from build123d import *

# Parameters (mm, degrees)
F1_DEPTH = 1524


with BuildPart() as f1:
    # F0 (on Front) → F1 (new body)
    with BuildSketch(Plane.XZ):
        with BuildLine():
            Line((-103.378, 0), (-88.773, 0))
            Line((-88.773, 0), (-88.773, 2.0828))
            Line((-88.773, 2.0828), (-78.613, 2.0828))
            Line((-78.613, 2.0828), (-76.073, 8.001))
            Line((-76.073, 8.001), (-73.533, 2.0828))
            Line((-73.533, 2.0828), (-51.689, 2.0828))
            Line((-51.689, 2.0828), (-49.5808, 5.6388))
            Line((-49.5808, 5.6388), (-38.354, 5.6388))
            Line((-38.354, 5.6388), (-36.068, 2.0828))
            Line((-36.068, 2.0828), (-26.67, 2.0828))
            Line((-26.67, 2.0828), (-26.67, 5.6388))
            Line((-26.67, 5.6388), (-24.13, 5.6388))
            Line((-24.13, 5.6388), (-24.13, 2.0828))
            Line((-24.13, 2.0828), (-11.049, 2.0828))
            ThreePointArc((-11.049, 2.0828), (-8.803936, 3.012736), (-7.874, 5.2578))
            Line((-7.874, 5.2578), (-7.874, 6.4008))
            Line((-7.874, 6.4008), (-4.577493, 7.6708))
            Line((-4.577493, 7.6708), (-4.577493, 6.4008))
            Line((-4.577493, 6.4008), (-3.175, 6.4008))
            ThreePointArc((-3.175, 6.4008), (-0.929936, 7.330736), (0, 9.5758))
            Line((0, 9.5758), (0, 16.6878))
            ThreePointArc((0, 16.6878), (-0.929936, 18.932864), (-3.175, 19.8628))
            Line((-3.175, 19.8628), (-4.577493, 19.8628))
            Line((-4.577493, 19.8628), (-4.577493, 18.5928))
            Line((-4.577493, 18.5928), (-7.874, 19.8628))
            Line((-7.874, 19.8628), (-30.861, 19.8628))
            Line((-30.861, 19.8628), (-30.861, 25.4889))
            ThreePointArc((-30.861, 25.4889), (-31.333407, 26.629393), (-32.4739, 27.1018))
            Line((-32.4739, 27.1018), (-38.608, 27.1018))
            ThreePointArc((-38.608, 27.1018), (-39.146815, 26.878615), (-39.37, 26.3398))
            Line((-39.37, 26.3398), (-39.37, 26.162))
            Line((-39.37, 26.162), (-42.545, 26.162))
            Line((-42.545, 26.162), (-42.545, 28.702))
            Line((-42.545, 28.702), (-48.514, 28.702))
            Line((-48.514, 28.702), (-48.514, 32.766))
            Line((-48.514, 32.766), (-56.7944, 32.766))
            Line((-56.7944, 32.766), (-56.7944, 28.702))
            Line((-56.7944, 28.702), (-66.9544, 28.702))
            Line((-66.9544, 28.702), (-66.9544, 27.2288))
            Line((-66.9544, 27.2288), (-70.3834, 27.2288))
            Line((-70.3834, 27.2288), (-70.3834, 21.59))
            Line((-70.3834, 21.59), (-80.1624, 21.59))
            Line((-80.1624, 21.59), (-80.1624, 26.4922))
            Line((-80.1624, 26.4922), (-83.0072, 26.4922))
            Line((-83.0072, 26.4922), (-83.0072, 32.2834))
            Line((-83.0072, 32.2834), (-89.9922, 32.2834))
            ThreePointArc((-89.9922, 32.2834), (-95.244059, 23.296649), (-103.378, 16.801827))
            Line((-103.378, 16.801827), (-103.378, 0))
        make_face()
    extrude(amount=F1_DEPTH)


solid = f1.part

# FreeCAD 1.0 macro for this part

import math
import FreeCAD as App
import Part
import Sketcher
Q = App.Units.Quantity

doc = App.newDocument("Part")
params = doc.addObject("Spreadsheet::Sheet", "Params")
for row, (alias, value) in enumerate([
    ("sketch1_radius", "0.03 in"),
    ("sketch1_width", "0.4 in"),
    ("sketch1_width2", "0.1 in"),
    ("sketch1_radius2", "0.125 in"),
    ("sketch1_width3", "0.86 in"),
    ("pad1_length", "60 in"),
], start=1):
    params.set(f"A{row}", alias)
    params.set(f"B{row}", "=" + value)
    params.setAlias(f"B{row}", alias)

body = doc.addObject("PartDesign::Body", "Body")

# Sketch on XZ plane
sketch1 = body.newObject("Sketcher::SketchObject", "Sketch")
sketch1.AttachmentSupport = (doc.getObject("XZ_Plane"), [""])
sketch1.MapMode = "FlatFace"
sketch1.addGeometry([
    Part.LineSegment(App.Vector(-103.38, 0, 0), App.Vector(-88.77, 0, 0)),  # 0
    Part.LineSegment(App.Vector(-88.77, 0, 0), App.Vector(-88.77, 2.08, 0)),  # 1
    Part.LineSegment(App.Vector(-88.77, 2.08, 0), App.Vector(-78.61, 2.08, 0)),  # 2
    Part.LineSegment(App.Vector(-78.61, 2.08, 0), App.Vector(-76.07, 8, 0)),  # 3
    Part.LineSegment(App.Vector(-76.07, 8, 0), App.Vector(-73.53, 2.08, 0)),  # 4
    Part.LineSegment(App.Vector(-73.53, 2.08, 0), App.Vector(-51.69, 2.08, 0)),  # 5
    Part.LineSegment(App.Vector(-51.69, 2.08, 0), App.Vector(-49.58, 5.64, 0)),  # 6
    Part.LineSegment(App.Vector(-49.58, 5.64, 0), App.Vector(-38.35, 5.64, 0)),  # 7
    Part.LineSegment(App.Vector(-38.35, 5.64, 0), App.Vector(-36.07, 2.08, 0)),  # 8
    Part.LineSegment(App.Vector(-36.07, 2.08, 0), App.Vector(-26.67, 2.08, 0)),  # 9
    Part.LineSegment(App.Vector(-26.67, 2.08, 0), App.Vector(-26.67, 5.64, 0)),  # 10
    Part.LineSegment(App.Vector(-26.67, 5.64, 0), App.Vector(-24.13, 5.64, 0)),  # 11
    Part.LineSegment(App.Vector(-24.13, 5.64, 0), App.Vector(-24.13, 2.08, 0)),  # 12
    Part.LineSegment(App.Vector(-24.13, 2.08, 0), App.Vector(-11.05, 2.08, 0)),  # 13
    Part.ArcOfCircle(Part.Circle(App.Vector(-11.05, 5.26, 0), App.Vector(0, 0, 1), 3.18), math.radians(-90), math.radians(0)),  # 14
    Part.LineSegment(App.Vector(-7.87, 5.26, 0), App.Vector(-7.87, 6.4, 0)),  # 15
    Part.LineSegment(App.Vector(-7.87, 6.4, 0), App.Vector(-4.58, 7.67, 0)),  # 16
    Part.LineSegment(App.Vector(-4.58, 7.67, 0), App.Vector(-4.58, 6.4, 0)),  # 17
    Part.LineSegment(App.Vector(-4.58, 6.4, 0), App.Vector(-3.17, 6.4, 0)),  # 18
    Part.ArcOfCircle(Part.Circle(App.Vector(-3.18, 9.58, 0), App.Vector(0, 0, 1), 3.18), math.radians(-90), math.radians(0)),  # 19
    Part.LineSegment(App.Vector(0, 9.58, 0), App.Vector(0, 16.69, 0)),  # 20
    Part.ArcOfCircle(Part.Circle(App.Vector(-3.18, 16.69, 0), App.Vector(0, 0, 1), 3.18), math.radians(0), math.radians(90)),  # 21
    Part.LineSegment(App.Vector(-3.17, 19.86, 0), App.Vector(-4.58, 19.86, 0)),  # 22
    Part.LineSegment(App.Vector(-4.58, 19.86, 0), App.Vector(-4.58, 18.59, 0)),  # 23
    Part.LineSegment(App.Vector(-4.58, 18.59, 0), App.Vector(-7.87, 19.86, 0)),  # 24
    Part.LineSegment(App.Vector(-7.87, 19.86, 0), App.Vector(-30.86, 19.86, 0)),  # 25
    Part.LineSegment(App.Vector(-30.86, 19.86, 0), App.Vector(-30.86, 25.49, 0)),  # 26
    Part.ArcOfCircle(Part.Circle(App.Vector(-32.47, 25.49, 0), App.Vector(0, 0, 1), 1.61), math.radians(0), math.radians(90)),  # 27
    Part.LineSegment(App.Vector(-32.47, 27.1, 0), App.Vector(-38.61, 27.1, 0)),  # 28
    Part.ArcOfCircle(Part.Circle(App.Vector(-38.61, 26.34, 0), App.Vector(0, 0, 1), 0.76), math.radians(90), math.radians(180)),  # 29
    Part.LineSegment(App.Vector(-39.37, 26.34, 0), App.Vector(-39.37, 26.16, 0)),  # 30
    Part.LineSegment(App.Vector(-39.37, 26.16, 0), App.Vector(-42.55, 26.16, 0)),  # 31
    Part.LineSegment(App.Vector(-42.55, 26.16, 0), App.Vector(-42.55, 28.7, 0)),  # 32
    Part.LineSegment(App.Vector(-42.55, 28.7, 0), App.Vector(-48.51, 28.7, 0)),  # 33
    Part.LineSegment(App.Vector(-48.51, 28.7, 0), App.Vector(-48.51, 32.77, 0)),  # 34
    Part.LineSegment(App.Vector(-48.51, 32.77, 0), App.Vector(-56.79, 32.77, 0)),  # 35
    Part.LineSegment(App.Vector(-56.79, 32.77, 0), App.Vector(-56.79, 28.7, 0)),  # 36
    Part.LineSegment(App.Vector(-56.79, 28.7, 0), App.Vector(-66.95, 28.7, 0)),  # 37
    Part.LineSegment(App.Vector(-66.95, 28.7, 0), App.Vector(-66.95, 27.23, 0)),  # 38
    Part.LineSegment(App.Vector(-66.95, 27.23, 0), App.Vector(-70.38, 27.23, 0)),  # 39
    Part.LineSegment(App.Vector(-70.38, 27.23, 0), App.Vector(-70.38, 21.59, 0)),  # 40
    Part.LineSegment(App.Vector(-70.38, 21.59, 0), App.Vector(-80.16, 21.59, 0)),  # 41
    Part.LineSegment(App.Vector(-80.16, 21.59, 0), App.Vector(-80.16, 26.49, 0)),  # 42
    Part.LineSegment(App.Vector(-80.16, 26.49, 0), App.Vector(-83.01, 26.49, 0)),  # 43
    Part.LineSegment(App.Vector(-83.01, 26.49, 0), App.Vector(-83.01, 32.28, 0)),  # 44
    Part.LineSegment(App.Vector(-83.01, 32.28, 0), App.Vector(-89.99, 32.28, 0)),  # 45
    Part.ArcOfCircle(Part.Circle(App.Vector(-116.76, 41.9, 0), App.Vector(0, 0, 1), 28.44), math.radians(-62), math.radians(-20)),  # 46
    Part.LineSegment(App.Vector(-103.38, 16.8, 0), App.Vector(-103.38, 0, 0)),  # 47
], False)
sketch1.addConstraint([
    Sketcher.Constraint("Coincident", 0, 2, 1, 1),
    Sketcher.Constraint("Coincident", 1, 2, 2, 1),
    Sketcher.Constraint("Coincident", 2, 2, 3, 1),
    Sketcher.Constraint("Coincident", 3, 2, 4, 1),
    Sketcher.Constraint("Coincident", 4, 2, 5, 1),
    Sketcher.Constraint("Coincident", 5, 2, 6, 1),
    Sketcher.Constraint("Coincident", 6, 2, 7, 1),
    Sketcher.Constraint("Coincident", 7, 2, 8, 1),
    Sketcher.Constraint("Coincident", 8, 2, 9, 1),
    Sketcher.Constraint("Coincident", 9, 2, 10, 1),
    Sketcher.Constraint("Coincident", 10, 2, 11, 1),
    Sketcher.Constraint("Coincident", 11, 2, 12, 1),
    Sketcher.Constraint("Coincident", 12, 2, 13, 1),
    Sketcher.Constraint("Tangent", 13, 2, 14, 1),
    Sketcher.Constraint("Tangent", 14, 2, 15, 1),
    Sketcher.Constraint("Coincident", 15, 2, 16, 1),
    Sketcher.Constraint("Coincident", 16, 2, 17, 1),
    Sketcher.Constraint("Coincident", 17, 2, 18, 1),
    Sketcher.Constraint("Tangent", 18, 2, 19, 1),
    Sketcher.Constraint("Tangent", 19, 2, 20, 1),
    Sketcher.Constraint("Tangent", 20, 2, 21, 1),
    Sketcher.Constraint("Tangent", 21, 2, 22, 1),
    Sketcher.Constraint("Coincident", 22, 2, 23, 1),
    Sketcher.Constraint("Coincident", 23, 2, 24, 1),
    Sketcher.Constraint("Coincident", 24, 2, 25, 1),
    Sketcher.Constraint("Coincident", 25, 2, 26, 1),
    Sketcher.Constraint("Tangent", 26, 2, 27, 1),
    Sketcher.Constraint("Tangent", 27, 2, 28, 1),
    Sketcher.Constraint("Tangent", 28, 2, 29, 1),
    Sketcher.Constraint("Tangent", 29, 2, 30, 1),
    Sketcher.Constraint("Coincident", 30, 2, 31, 1),
    Sketcher.Constraint("Coincident", 31, 2, 32, 1),
    Sketcher.Constraint("Coincident", 32, 2, 33, 1),
    Sketcher.Constraint("Coincident", 33, 2, 34, 1),
    Sketcher.Constraint("Coincident", 34, 2, 35, 1),
    Sketcher.Constraint("Coincident", 35, 2, 36, 1),
    Sketcher.Constraint("Coincident", 36, 2, 37, 1),
    Sketcher.Constraint("Coincident", 37, 2, 38, 1),
    Sketcher.Constraint("Coincident", 38, 2, 39, 1),
    Sketcher.Constraint("Coincident", 39, 2, 40, 1),
    Sketcher.Constraint("Coincident", 40, 2, 41, 1),
    Sketcher.Constraint("Coincident", 41, 2, 42, 1),
    Sketcher.Constraint("Coincident", 42, 2, 43, 1),
    Sketcher.Constraint("Coincident", 43, 2, 44, 1),
    Sketcher.Constraint("Coincident", 44, 2, 45, 1),
    Sketcher.Constraint("Coincident", 45, 2, 46, 2),
    Sketcher.Constraint("Coincident", 46, 1, 47, 1),
    Sketcher.Constraint("Coincident", 47, 2, 0, 1),
    Sketcher.Constraint("Horizontal", 0),
    Sketcher.Constraint("Vertical", 1),
    Sketcher.Constraint("Horizontal", 2),
    Sketcher.Constraint("Horizontal", 5),
    Sketcher.Constraint("Horizontal", 7),
    Sketcher.Constraint("Horizontal", 9),
    Sketcher.Constraint("Vertical", 10),
    Sketcher.Constraint("Horizontal", 11),
    Sketcher.Constraint("Vertical", 12),
    Sketcher.Constraint("Horizontal", 13),
    Sketcher.Constraint("Vertical", 15),
    Sketcher.Constraint("Vertical", 17),
    Sketcher.Constraint("Horizontal", 18),
    Sketcher.Constraint("Vertical", 20),
    Sketcher.Constraint("Horizontal", 22),
    Sketcher.Constraint("Vertical", 23),
    Sketcher.Constraint("Horizontal", 25),
    Sketcher.Constraint("Vertical", 26),
    Sketcher.Constraint("Horizontal", 28),
    Sketcher.Constraint("Vertical", 30),
    Sketcher.Constraint("Horizontal", 31),
    Sketcher.Constraint("Vertical", 32),
    Sketcher.Constraint("Horizontal", 33),
    Sketcher.Constraint("Vertical", 34),
    Sketcher.Constraint("Horizontal", 35),
    Sketcher.Constraint("Vertical", 36),
    Sketcher.Constraint("Horizontal", 37),
    Sketcher.Constraint("Vertical", 38),
    Sketcher.Constraint("Horizontal", 39),
    Sketcher.Constraint("Vertical", 40),
    Sketcher.Constraint("Horizontal", 41),
    Sketcher.Constraint("Vertical", 42),
    Sketcher.Constraint("Horizontal", 43),
    Sketcher.Constraint("Vertical", 44),
    Sketcher.Constraint("Horizontal", 45),
    Sketcher.Constraint("Vertical", 47),
    Sketcher.Constraint("Equal", 14, 19),
    Sketcher.Constraint("Equal", 19, 21),
    Sketcher.Constraint("PointOnObject", 0, 2, -1),
    Sketcher.Constraint("PointOnObject", 19, 2, -2),
    Sketcher.Constraint("Horizontal", 2, 2, 4, 2),
    Sketcher.Constraint("Horizontal", 5, 2, 8, 2),
    Sketcher.Constraint("Horizontal", 7, 2, 10, 2),
    Sketcher.Constraint("Horizontal", 9, 2, 12, 2),
    Sketcher.Constraint("Horizontal", 15, 2, 17, 2),
    Sketcher.Constraint("Horizontal", 22, 2, 24, 2),
    Sketcher.Constraint("Horizontal", 33, 2, 36, 2),
    Sketcher.Constraint("Vertical", 17, 2, 22, 2),
    Sketcher.Constraint("Vertical", 15, 2, 24, 2),
    Sketcher.Constraint("Equal", 2, 37),
    Sketcher.Constraint("Equal", 17, 23),
    Sketcher.Constraint("Equal", 11, 32),
    Sketcher.Constraint("Equal", 3, 4),
    Sketcher.Constraint("Radius", 29, Q("0.03 in")),
    Sketcher.Constraint("DistanceX", 2, 1, 2, 2, Q("0.4 in")),
    Sketcher.Constraint("DistanceX", 11, 1, 11, 2, Q("0.1 in")),
    Sketcher.Constraint("Radius", 14, Q("0.125 in")),
    Sketcher.Constraint("DistanceX", 5, 1, 5, 2, Q("0.86 in")),
    Sketcher.Constraint("DistanceX", 9, 1, 9, 2, Q("0.37 in")),
    Sketcher.Constraint("DistanceY", 10, 1, 10, 2, Q("0.14 in")),
    Sketcher.Constraint("DistanceY", 17, 2, 17, 1, Q("0.05 in")),
    Sketcher.Constraint("DistanceY", 20, 1, 20, 2, Q("0.28 in")),
    Sketcher.Constraint("DistanceY", 34, 1, 34, 2, Q("0.16 in")),
    Sketcher.Constraint("Radius", 27, Q("0.0634999 in")),
    Sketcher.Constraint("DistanceX", 2, 2, 3, 2, Q("0.1 in")),
    Sketcher.Constraint("DistanceX", 29, 3, 8, 2, Q("0.1 in")),
    Sketcher.Constraint("DistanceX", 0, 1, 0, 2, Q("0.575 in")),
    Sketcher.Constraint("DistanceX", 7, 1, 7, 2, Q("0.442 in")),
    Sketcher.Constraint("DistanceX", 13, 1, 13, 2, Q("0.515 in")),
    Sketcher.Constraint("DistanceX", 25, 2, 25, 1, Q("0.905 in")),
    Sketcher.Constraint("DistanceX", 31, 2, 31, 1, Q("0.125 in")),
    Sketcher.Constraint("DistanceX", 33, 2, 33, 1, Q("0.235 in")),
    Sketcher.Constraint("DistanceX", 35, 2, 35, 1, Q("0.326 in")),
    Sketcher.Constraint("DistanceX", 39, 2, 39, 1, Q("0.135 in")),
    Sketcher.Constraint("DistanceX", 41, 2, 41, 1, Q("0.385 in")),
    Sketcher.Constraint("DistanceX", 43, 2, 43, 1, Q("0.112 in")),
    Sketcher.Constraint("DistanceX", 45, 2, 45, 1, Q("0.275 in")),
    Sketcher.Constraint("DistanceY", 1, 1, 1, 2, Q("0.082 in")),
    Sketcher.Constraint("DistanceY", 15, 1, 15, 2, Q("0.045 in")),
    Sketcher.Constraint("DistanceY", 30, 2, 30, 1, Q("0.007 in")),
    Sketcher.Constraint("DistanceY", 38, 2, 38, 1, Q("0.058 in")),
    Sketcher.Constraint("DistanceY", 40, 2, 40, 1, Q("0.222 in")),
    Sketcher.Constraint("DistanceY", 42, 1, 42, 2, Q("0.193 in")),
    Sketcher.Constraint("DistanceY", 44, 1, 44, 2, Q("0.228 in")),
    Sketcher.Constraint("DistanceX", 29, 3, -1, 1, Q("1.52 in")),
    Sketcher.Constraint("DistanceX", 7, 2, -1, 1, Q("1.51 in")),
    Sketcher.Constraint("DistanceY", -1, 1, 30, 2, Q("1.03 in")),
    Sketcher.Constraint("DistanceX", 46, 1, -1, 1, Q("4.07 in")),
    Sketcher.Constraint("DistanceY", -1, 1, 3, 2, Q("0.315 in")),
    Sketcher.Constraint("Radius", 46, Q("28.436663 mm")),
    Sketcher.Constraint("DistanceX", 18, 1, 18, 2, Q("1.402493 mm")),
    Sketcher.Constraint("DistanceY", 47, 2, 47, 1, Q("16.801827 mm")),
])
sketch1.setExpression("Constraints[101]", "Params.sketch1_radius")
sketch1.setExpression("Constraints[102]", "Params.sketch1_width")
sketch1.setExpression("Constraints[103]", "Params.sketch1_width2")
sketch1.setExpression("Constraints[104]", "Params.sketch1_radius2")
sketch1.setExpression("Constraints[105]", "Params.sketch1_width3")
pad1 = body.newObject("PartDesign::Pad", "Pad")
pad1.Profile = sketch1
pad1.setExpression("Length", "Params.pad1_length")

doc.recompute()
